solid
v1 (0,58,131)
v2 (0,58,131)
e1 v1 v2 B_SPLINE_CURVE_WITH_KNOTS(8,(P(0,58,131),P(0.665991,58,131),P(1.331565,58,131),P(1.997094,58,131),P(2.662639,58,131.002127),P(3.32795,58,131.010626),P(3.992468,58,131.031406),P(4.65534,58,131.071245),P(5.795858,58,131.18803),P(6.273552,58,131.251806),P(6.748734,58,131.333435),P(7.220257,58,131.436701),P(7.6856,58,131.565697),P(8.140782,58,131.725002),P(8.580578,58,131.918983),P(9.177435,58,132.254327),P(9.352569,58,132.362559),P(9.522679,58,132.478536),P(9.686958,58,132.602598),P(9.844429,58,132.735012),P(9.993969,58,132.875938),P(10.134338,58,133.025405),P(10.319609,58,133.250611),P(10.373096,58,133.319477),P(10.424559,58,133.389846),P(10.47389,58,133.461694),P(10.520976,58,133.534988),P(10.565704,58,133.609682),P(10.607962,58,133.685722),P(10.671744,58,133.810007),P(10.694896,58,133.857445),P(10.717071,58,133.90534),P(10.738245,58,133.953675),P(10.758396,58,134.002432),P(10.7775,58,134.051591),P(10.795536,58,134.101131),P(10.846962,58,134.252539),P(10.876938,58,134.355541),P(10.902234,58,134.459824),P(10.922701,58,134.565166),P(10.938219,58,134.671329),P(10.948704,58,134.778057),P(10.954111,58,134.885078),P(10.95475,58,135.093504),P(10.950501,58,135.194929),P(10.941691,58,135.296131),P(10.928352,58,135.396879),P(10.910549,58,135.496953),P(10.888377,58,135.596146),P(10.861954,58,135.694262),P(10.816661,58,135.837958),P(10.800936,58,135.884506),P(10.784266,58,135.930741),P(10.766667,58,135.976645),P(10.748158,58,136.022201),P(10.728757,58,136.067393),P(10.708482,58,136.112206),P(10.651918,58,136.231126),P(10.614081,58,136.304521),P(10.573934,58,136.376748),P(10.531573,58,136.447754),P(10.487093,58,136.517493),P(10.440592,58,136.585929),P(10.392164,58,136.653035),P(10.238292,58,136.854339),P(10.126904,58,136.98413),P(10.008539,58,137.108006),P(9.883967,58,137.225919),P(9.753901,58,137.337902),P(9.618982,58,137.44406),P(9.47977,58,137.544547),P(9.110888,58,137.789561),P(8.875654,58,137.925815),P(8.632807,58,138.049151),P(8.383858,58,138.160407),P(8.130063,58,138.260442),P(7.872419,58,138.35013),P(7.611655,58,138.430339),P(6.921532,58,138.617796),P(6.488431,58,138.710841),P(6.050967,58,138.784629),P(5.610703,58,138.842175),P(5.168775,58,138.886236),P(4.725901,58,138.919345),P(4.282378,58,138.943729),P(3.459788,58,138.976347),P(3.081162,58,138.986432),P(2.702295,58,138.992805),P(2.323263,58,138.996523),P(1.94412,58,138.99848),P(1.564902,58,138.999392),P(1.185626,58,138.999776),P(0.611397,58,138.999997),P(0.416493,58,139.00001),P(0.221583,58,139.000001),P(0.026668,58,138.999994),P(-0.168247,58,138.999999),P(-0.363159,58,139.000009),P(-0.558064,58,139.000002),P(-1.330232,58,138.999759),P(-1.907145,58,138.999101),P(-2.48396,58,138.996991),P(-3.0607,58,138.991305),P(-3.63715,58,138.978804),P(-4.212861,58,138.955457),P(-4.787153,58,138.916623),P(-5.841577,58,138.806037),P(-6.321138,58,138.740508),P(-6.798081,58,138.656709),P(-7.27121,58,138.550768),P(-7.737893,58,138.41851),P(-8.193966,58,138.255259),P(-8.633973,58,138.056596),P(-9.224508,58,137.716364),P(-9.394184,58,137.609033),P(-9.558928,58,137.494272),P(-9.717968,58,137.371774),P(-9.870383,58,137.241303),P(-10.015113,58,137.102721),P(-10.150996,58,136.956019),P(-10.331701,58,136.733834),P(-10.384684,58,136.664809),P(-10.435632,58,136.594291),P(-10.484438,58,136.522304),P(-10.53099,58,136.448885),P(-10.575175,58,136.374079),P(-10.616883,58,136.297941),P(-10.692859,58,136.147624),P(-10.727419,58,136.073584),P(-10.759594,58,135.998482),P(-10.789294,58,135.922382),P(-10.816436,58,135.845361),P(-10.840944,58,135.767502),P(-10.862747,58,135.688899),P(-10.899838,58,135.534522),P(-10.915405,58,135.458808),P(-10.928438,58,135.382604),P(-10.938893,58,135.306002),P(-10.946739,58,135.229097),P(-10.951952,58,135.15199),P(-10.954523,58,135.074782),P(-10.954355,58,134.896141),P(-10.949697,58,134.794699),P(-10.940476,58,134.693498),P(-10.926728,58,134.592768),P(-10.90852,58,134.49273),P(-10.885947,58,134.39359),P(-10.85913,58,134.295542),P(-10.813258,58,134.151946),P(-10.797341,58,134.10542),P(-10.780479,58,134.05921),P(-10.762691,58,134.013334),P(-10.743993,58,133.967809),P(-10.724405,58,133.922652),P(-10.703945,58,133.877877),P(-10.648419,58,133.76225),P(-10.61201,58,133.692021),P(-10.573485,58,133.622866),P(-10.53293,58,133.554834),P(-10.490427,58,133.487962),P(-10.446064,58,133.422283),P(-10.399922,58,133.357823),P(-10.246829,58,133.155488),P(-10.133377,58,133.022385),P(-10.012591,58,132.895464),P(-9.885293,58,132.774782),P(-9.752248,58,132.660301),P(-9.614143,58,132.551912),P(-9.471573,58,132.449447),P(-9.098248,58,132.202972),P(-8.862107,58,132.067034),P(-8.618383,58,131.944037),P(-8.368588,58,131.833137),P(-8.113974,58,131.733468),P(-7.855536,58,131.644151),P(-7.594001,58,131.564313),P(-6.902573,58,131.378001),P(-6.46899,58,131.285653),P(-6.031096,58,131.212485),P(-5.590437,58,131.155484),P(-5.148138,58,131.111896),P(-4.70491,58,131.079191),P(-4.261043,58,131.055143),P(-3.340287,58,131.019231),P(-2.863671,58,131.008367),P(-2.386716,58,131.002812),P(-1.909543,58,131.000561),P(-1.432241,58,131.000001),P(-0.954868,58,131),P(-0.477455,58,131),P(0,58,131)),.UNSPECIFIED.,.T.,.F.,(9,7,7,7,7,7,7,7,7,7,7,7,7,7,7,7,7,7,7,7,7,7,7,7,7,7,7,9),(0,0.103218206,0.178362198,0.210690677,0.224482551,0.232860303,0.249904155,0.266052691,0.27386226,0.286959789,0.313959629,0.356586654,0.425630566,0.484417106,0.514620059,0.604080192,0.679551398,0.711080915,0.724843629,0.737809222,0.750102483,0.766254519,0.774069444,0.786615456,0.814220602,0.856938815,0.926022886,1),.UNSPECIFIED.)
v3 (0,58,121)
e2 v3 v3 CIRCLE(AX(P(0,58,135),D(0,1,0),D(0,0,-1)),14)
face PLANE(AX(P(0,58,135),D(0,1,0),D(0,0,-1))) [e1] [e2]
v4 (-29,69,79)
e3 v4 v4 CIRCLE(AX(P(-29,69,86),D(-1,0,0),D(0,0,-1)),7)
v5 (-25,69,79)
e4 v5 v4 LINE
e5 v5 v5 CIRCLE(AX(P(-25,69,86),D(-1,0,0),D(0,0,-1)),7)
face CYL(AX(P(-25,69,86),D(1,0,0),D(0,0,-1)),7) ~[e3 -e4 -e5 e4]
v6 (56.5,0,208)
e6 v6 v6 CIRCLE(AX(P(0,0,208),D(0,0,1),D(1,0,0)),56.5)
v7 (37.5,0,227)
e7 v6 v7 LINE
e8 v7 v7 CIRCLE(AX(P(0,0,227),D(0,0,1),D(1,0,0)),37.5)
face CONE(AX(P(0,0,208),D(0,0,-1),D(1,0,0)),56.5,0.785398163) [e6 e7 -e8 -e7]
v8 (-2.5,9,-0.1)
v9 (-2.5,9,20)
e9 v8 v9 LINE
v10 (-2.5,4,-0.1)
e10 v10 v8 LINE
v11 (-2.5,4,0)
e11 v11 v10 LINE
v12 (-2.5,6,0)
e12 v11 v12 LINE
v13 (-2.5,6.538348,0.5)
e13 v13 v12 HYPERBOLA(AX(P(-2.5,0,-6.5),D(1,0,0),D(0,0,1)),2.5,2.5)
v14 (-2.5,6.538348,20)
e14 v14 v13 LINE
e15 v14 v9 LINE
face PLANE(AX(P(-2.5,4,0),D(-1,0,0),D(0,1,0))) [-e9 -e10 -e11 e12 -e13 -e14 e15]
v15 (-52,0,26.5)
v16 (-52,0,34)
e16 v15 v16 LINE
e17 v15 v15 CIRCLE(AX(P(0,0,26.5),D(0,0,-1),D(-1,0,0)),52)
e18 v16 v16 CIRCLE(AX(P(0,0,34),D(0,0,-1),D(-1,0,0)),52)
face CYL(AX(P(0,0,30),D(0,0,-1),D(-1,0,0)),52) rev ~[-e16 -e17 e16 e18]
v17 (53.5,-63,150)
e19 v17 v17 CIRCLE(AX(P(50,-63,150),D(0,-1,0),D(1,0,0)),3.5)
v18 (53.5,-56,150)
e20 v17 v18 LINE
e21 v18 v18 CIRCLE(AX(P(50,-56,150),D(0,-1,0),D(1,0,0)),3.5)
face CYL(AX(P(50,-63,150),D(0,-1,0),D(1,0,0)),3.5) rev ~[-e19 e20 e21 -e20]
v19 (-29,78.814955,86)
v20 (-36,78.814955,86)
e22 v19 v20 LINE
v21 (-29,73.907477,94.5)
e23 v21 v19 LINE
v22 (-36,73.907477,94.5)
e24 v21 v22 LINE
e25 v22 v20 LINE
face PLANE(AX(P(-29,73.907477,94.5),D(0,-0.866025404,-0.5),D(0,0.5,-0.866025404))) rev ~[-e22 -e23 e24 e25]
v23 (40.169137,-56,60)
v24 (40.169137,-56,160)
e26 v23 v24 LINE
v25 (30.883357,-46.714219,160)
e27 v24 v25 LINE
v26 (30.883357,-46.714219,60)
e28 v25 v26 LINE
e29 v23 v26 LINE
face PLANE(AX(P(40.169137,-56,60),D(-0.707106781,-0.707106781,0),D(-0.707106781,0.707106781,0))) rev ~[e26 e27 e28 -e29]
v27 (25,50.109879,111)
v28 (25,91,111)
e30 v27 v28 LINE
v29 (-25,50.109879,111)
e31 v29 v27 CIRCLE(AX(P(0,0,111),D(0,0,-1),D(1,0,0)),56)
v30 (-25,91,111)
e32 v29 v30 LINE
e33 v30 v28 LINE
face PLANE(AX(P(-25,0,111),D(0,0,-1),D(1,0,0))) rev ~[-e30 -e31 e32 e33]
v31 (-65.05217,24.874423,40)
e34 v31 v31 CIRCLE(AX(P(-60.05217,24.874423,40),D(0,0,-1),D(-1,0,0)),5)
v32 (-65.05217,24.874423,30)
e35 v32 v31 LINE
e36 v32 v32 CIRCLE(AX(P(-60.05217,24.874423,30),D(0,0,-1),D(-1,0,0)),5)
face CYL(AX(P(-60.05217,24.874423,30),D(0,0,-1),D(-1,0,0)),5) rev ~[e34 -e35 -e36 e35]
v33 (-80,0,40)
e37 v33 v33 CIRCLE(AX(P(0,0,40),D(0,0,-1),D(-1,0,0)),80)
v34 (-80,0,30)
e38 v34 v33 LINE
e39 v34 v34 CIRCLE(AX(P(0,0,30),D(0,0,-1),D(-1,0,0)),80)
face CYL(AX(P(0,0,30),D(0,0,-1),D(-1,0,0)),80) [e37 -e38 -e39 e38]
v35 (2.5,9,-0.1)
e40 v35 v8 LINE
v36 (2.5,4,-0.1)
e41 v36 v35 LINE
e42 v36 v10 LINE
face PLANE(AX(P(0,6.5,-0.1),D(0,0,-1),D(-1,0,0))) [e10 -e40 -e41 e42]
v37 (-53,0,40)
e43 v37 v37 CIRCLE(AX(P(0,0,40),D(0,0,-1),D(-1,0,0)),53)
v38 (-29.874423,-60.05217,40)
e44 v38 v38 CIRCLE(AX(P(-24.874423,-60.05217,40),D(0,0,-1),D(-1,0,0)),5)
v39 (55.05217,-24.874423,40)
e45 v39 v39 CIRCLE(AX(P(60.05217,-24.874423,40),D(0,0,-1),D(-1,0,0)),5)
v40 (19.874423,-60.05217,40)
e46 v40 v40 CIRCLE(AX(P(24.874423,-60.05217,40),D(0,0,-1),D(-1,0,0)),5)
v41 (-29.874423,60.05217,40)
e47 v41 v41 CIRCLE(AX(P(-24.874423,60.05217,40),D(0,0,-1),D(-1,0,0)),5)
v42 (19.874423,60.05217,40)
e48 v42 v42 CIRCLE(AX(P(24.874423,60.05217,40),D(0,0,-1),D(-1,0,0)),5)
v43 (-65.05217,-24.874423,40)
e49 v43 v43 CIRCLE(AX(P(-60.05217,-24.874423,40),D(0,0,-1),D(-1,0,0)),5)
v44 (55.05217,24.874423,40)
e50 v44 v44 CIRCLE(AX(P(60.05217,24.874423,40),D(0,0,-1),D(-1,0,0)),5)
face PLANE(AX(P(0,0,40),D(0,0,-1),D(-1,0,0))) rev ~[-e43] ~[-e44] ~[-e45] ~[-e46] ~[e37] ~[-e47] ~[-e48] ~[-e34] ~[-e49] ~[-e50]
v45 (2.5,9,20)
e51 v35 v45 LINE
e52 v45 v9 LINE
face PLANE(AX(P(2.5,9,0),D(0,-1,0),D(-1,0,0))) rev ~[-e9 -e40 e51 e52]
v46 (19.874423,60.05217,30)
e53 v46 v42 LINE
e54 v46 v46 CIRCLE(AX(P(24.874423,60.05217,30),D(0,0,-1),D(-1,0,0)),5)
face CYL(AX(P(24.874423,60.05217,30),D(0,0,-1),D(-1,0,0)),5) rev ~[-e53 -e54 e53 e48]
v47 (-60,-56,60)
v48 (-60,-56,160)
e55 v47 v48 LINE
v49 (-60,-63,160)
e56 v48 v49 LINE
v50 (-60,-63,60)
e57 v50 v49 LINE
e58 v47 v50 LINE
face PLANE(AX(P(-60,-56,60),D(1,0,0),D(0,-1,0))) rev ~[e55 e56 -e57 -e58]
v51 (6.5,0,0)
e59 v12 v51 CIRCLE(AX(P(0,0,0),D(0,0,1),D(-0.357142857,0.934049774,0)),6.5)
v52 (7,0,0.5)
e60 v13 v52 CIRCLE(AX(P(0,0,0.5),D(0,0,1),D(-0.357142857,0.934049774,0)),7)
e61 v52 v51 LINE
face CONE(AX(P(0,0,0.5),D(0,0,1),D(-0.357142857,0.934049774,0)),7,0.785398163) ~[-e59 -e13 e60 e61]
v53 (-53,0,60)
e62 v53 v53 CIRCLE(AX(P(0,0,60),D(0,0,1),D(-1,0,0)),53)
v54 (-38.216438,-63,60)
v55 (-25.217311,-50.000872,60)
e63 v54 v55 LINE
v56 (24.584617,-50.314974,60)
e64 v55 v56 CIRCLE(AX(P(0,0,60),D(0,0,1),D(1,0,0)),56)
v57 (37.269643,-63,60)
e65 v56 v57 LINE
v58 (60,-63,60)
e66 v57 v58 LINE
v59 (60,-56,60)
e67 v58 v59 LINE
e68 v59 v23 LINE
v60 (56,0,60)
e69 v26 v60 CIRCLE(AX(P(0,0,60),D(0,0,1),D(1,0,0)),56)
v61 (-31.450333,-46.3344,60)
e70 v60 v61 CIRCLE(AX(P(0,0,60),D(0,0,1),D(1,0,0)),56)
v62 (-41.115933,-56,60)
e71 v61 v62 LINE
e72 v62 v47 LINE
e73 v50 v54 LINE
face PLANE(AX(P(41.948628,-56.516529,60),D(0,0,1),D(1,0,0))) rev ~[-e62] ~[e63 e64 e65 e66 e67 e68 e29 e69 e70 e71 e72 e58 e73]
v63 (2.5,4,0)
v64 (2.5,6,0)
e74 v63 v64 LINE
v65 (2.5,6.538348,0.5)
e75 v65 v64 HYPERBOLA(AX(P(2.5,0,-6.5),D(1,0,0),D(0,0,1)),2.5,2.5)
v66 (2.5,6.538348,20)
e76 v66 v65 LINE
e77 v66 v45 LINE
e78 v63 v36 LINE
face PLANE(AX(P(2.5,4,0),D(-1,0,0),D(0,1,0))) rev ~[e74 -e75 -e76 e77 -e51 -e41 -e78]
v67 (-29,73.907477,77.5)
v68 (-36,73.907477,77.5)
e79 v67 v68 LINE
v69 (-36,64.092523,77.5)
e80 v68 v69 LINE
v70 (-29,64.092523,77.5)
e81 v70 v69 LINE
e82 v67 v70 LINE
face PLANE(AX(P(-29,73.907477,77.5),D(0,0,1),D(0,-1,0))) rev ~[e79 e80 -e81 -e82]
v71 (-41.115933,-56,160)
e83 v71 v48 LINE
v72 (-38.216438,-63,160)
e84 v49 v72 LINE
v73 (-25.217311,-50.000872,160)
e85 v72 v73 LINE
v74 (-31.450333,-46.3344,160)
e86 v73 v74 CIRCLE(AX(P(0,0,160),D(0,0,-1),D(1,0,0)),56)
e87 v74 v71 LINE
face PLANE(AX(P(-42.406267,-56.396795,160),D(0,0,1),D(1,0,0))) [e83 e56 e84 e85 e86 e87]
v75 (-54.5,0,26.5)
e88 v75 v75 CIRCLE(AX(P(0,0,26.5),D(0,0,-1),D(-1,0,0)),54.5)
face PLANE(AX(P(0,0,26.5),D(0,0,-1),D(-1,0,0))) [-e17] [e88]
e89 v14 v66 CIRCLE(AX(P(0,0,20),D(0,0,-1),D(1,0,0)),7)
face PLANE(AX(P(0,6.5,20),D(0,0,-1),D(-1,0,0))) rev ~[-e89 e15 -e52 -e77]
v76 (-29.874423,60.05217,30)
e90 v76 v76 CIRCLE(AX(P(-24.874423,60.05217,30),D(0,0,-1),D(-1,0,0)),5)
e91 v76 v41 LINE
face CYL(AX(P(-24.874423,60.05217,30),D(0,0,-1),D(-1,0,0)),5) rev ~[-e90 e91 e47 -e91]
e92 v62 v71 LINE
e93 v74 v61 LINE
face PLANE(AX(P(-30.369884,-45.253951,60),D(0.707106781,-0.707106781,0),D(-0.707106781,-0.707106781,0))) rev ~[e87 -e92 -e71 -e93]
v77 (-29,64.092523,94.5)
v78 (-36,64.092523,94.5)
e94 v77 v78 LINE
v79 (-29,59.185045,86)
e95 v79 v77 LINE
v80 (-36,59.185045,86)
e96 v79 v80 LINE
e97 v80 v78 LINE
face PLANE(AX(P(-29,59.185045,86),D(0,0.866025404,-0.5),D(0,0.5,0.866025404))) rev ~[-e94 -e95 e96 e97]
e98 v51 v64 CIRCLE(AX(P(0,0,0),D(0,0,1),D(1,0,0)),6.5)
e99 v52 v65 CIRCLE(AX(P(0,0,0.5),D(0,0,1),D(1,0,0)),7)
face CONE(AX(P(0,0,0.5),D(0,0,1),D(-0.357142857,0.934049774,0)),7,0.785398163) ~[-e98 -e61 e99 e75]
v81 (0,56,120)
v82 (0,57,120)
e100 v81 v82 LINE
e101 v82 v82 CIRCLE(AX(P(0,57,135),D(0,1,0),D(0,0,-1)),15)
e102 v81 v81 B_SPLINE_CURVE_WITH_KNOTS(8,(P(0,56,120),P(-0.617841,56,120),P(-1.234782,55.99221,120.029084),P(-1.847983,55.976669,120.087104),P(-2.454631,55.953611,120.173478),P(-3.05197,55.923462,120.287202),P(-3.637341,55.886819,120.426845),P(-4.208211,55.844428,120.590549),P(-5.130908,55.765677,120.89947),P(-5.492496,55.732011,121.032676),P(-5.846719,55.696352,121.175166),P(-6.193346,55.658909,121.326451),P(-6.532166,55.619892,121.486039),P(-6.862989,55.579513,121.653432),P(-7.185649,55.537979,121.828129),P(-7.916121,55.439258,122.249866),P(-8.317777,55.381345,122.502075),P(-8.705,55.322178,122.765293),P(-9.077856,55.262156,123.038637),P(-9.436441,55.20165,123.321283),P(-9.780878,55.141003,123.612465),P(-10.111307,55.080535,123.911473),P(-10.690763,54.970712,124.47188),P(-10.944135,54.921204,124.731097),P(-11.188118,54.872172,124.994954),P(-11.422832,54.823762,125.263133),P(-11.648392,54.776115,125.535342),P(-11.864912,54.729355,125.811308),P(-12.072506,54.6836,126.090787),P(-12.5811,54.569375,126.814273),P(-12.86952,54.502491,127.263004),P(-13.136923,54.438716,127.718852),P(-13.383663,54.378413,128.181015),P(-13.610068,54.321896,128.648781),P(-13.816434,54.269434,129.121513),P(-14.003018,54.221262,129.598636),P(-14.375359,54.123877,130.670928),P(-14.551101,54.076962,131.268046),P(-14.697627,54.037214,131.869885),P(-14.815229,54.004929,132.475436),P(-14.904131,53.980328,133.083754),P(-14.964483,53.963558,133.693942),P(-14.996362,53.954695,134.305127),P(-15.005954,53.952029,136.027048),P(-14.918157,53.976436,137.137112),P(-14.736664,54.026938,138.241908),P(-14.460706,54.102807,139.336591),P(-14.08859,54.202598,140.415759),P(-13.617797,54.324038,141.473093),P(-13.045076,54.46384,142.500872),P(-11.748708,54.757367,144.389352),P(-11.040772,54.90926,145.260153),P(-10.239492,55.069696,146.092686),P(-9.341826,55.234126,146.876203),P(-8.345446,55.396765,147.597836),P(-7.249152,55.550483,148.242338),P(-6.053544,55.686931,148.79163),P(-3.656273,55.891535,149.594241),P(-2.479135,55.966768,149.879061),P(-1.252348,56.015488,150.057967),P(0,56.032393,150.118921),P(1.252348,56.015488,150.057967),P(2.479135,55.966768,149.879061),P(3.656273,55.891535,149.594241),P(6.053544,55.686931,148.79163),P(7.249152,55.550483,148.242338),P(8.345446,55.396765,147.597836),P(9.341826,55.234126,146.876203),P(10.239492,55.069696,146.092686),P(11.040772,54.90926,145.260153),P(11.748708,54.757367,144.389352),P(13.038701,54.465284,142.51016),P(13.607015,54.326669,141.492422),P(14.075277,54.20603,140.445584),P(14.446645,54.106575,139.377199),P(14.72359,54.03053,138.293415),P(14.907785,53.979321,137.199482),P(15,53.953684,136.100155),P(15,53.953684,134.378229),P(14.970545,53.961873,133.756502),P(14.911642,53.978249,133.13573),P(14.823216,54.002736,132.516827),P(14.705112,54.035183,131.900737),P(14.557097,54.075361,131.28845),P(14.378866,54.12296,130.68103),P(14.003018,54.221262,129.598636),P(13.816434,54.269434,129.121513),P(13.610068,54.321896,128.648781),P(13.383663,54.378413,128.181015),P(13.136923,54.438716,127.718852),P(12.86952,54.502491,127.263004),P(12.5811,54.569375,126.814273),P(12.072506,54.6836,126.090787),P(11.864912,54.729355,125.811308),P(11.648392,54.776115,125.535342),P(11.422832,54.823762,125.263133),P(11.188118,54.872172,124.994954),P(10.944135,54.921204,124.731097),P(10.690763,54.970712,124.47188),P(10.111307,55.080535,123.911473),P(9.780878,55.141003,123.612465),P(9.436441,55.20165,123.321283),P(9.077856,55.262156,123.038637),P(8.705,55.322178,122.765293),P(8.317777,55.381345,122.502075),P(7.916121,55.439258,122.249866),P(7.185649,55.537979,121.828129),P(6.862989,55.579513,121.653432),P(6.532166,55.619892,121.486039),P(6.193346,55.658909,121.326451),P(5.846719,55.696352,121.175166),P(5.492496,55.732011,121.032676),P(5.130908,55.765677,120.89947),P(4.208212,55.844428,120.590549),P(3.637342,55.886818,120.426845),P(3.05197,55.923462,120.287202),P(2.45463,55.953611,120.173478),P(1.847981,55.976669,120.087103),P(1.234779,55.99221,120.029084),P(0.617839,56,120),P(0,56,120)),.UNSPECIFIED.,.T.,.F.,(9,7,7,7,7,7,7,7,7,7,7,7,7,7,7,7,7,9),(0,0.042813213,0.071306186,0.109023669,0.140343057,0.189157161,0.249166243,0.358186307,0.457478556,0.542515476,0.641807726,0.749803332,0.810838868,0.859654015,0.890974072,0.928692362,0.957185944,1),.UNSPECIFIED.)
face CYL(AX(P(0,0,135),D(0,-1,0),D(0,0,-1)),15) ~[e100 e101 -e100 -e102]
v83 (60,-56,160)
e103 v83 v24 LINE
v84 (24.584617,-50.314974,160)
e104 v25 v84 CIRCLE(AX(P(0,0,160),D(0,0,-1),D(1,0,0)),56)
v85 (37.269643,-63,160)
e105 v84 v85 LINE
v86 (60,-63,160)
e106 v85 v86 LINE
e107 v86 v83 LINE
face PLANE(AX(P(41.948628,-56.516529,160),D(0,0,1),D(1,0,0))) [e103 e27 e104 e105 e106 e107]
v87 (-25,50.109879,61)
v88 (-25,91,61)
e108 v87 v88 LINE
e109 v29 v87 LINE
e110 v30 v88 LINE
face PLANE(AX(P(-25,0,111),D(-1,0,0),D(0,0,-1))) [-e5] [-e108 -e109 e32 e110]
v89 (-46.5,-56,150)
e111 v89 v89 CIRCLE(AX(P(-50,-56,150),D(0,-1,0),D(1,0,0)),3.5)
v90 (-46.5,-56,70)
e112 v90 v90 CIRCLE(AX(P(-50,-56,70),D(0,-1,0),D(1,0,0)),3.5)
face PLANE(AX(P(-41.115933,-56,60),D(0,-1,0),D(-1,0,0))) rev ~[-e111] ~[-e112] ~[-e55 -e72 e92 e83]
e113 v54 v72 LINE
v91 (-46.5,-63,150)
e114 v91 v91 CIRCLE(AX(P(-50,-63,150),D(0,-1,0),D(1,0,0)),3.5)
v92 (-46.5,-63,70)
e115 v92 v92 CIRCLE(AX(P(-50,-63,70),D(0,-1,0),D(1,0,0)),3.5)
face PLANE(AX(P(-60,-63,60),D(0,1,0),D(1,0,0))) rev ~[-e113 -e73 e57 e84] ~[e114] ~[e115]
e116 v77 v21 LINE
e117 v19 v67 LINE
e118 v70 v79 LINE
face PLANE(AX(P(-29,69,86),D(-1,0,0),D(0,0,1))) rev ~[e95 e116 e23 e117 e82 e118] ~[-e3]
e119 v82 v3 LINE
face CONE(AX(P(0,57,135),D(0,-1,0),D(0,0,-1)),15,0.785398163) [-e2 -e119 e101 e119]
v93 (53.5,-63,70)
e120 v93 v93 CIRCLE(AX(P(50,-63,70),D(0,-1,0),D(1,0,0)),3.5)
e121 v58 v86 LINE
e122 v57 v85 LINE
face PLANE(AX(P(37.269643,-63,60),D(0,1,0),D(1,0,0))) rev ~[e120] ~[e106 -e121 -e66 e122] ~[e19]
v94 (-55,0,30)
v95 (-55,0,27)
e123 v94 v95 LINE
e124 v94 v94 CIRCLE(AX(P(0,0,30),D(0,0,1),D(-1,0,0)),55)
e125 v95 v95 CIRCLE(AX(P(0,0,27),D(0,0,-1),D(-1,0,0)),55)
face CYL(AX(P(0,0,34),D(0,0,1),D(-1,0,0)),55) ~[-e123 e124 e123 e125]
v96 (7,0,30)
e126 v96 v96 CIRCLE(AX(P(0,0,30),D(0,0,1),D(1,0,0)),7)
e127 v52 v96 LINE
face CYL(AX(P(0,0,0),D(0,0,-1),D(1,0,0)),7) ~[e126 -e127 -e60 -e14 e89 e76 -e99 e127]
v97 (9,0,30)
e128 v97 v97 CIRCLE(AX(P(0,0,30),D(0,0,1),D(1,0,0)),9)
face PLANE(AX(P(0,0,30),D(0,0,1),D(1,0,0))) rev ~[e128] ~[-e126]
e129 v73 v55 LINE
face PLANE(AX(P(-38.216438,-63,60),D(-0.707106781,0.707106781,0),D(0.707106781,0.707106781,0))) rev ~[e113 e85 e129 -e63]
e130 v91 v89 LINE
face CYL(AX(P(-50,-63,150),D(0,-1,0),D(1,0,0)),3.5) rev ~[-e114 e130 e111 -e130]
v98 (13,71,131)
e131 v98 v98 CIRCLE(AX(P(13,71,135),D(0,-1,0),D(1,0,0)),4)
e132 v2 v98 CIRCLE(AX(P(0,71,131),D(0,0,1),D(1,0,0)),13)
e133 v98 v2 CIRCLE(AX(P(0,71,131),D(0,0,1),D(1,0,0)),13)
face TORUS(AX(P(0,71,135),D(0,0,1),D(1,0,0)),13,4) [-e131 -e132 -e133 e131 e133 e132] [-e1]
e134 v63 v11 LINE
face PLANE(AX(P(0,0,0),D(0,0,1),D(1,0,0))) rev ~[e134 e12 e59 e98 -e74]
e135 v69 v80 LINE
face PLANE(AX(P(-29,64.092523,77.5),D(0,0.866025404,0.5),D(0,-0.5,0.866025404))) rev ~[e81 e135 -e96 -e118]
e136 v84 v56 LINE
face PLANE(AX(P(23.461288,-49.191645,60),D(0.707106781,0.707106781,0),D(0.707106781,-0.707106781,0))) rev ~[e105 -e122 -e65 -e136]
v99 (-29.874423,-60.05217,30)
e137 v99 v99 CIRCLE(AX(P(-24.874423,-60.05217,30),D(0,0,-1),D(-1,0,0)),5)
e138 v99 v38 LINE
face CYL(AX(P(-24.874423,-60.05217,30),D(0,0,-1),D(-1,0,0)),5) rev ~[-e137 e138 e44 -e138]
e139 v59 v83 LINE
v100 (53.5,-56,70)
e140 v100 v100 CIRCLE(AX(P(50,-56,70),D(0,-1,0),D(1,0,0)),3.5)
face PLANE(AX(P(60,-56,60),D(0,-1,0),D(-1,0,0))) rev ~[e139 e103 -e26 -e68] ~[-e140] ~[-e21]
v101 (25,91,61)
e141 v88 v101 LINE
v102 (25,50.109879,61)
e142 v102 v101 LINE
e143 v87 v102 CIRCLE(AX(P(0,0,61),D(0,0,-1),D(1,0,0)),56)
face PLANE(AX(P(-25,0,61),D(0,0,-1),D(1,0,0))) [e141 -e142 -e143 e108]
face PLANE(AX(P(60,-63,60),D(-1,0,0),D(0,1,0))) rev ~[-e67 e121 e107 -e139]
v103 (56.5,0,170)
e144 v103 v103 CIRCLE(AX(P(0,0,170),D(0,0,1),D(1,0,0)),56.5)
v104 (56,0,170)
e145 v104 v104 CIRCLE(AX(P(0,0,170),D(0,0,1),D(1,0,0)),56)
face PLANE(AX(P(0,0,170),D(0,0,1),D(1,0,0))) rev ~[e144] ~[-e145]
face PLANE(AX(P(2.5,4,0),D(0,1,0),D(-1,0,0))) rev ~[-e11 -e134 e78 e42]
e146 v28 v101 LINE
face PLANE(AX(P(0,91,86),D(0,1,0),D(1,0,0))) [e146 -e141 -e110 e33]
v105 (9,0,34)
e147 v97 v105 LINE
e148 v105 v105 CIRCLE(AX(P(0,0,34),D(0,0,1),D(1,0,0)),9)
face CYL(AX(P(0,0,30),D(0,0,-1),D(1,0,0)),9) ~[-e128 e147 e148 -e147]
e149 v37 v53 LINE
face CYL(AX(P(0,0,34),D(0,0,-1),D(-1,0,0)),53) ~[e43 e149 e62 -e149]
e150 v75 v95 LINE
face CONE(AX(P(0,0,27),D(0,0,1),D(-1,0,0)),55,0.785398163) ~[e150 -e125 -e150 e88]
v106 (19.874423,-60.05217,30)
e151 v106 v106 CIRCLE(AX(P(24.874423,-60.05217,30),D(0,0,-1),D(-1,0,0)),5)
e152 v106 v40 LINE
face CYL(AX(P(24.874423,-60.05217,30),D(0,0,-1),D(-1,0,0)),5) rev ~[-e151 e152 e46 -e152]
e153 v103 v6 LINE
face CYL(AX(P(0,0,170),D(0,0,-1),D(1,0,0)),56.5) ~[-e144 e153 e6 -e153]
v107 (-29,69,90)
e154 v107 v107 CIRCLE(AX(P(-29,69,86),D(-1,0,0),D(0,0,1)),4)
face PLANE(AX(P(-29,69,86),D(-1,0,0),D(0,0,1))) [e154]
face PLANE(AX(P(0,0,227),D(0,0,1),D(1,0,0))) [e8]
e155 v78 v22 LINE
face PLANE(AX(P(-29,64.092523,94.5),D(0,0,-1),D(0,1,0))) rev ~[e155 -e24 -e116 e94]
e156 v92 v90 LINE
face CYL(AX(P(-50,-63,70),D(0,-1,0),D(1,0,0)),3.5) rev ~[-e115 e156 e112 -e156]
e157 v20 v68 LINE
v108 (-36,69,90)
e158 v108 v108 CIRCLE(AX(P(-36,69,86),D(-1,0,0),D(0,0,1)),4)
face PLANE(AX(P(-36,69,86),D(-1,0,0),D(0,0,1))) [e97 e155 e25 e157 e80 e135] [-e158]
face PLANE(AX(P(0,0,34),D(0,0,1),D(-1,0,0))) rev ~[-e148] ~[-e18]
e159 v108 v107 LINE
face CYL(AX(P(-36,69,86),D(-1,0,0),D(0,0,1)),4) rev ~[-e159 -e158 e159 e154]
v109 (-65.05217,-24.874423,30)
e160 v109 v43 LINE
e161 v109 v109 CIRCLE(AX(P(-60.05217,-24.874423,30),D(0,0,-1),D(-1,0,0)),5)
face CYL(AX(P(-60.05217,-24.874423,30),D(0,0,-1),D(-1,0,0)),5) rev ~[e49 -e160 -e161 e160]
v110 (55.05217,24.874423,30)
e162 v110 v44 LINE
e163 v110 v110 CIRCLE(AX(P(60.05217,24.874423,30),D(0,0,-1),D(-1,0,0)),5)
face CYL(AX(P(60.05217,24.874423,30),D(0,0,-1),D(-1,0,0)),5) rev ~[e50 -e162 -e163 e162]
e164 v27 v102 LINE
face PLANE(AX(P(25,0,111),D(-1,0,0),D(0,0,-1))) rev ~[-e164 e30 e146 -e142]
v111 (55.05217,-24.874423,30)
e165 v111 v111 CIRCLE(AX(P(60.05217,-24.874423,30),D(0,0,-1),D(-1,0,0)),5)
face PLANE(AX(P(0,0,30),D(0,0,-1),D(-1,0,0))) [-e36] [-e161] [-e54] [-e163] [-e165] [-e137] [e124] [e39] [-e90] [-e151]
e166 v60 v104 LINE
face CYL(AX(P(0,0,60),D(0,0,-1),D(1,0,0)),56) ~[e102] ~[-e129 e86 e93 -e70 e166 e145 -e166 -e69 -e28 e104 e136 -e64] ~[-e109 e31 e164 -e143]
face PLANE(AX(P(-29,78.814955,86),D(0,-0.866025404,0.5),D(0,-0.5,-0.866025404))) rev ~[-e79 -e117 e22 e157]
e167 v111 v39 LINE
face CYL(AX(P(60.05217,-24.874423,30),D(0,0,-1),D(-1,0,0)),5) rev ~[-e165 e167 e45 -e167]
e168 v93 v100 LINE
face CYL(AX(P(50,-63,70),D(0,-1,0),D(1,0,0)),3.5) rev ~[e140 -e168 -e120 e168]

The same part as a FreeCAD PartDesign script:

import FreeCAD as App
import Part
import Sketcher

V = App.Vector
Q = App.Units.Quantity


def edges_at(feature, points):
    """Names of the edges that pass closest to the given points."""
    edges = feature.Shape.Edges
    near = lambda p: min(range(len(edges)), key=lambda i: edges[i].distToShape(Part.Vertex(*p))[0])
    return sorted({f"Edge{near(p) + 1}" for p in points})

doc = App.newDocument("Part")
body = doc.addObject("PartDesign::Body", "Body")

# Sketch on XY plane
sketch1 = body.newObject("Sketcher::SketchObject", "Sketch")
sketch1.AttachmentSupport = (doc.getObject("XY_Plane"), [""])
sketch1.MapMode = "FlatFace"
sketch1.addGeometry(Part.Circle(V(0, 0, 0), V(0, 0, 1), 7), False)
sketch1.addConstraint(Sketcher.Constraint("Coincident", 0, 3, -1, 1))
sketch1.addConstraint(Sketcher.Constraint("Diameter", 0, 14.0))
pad1 = body.newObject("PartDesign::Pad", "Pad")
pad1.Profile = sketch1
pad1.Length = 30

# Sketch on XY plane
sketch2 = body.newObject("Sketcher::SketchObject", "Sketch001")
sketch2.AttachmentSupport = (doc.getObject("XY_Plane"), [""])
sketch2.MapMode = "FlatFace"
sketch2.addGeometry(Part.LineSegment(V(2, 9, 0), V(2, 4, 0)), False)
sketch2.addGeometry(Part.LineSegment(V(2, 4, 0), V(-2, 4, 0)), False)
sketch2.addGeometry(Part.LineSegment(V(-2, 4, 0), V(-2, 9, 0)), False)
sketch2.addGeometry(Part.LineSegment(V(-2, 9, 0), V(2, 9, 0)), False)
sketch2.addConstraint(Sketcher.Constraint("Coincident", 0, 2, 1, 1))
sketch2.addConstraint(Sketcher.Constraint("Coincident", 1, 2, 2, 1))
sketch2.addConstraint(Sketcher.Constraint("Coincident", 2, 2, 3, 1))
sketch2.addConstraint(Sketcher.Constraint("Coincident", 3, 2, 0, 1))
sketch2.addConstraint(Sketcher.Constraint("Vertical", 0))
sketch2.addConstraint(Sketcher.Constraint("Horizontal", 1))
sketch2.addConstraint(Sketcher.Constraint("Vertical", 2))
sketch2.addConstraint(Sketcher.Constraint("Horizontal", 3))
sketch2.addConstraint(Sketcher.Constraint("Equal", 3, 0))
sketch2.addConstraint(Sketcher.Constraint("DistanceX", 1, 2, 1, 1, 5.0))
sketch2.addConstraint(Sketcher.Constraint("DistanceY", -1, 1, 0, 2, 4.0))
sketch2.addConstraint(Sketcher.Constraint("DistanceX", -1, 1, 0, 2, 2.5))
pad2 = body.newObject("PartDesign::Pad", "Pad001")
pad2.Profile = sketch2
pad2.Type = "TwoLengths"
pad2.Length = 0.1
pad2.Length2 = 20
pad2.Reversed = True

# Sketch on XY plane
sketch3 = body.newObject("Sketcher::SketchObject", "Sketch002")
sketch3.AttachmentSupport = (doc.getObject("XY_Plane"), [""])
sketch3.MapMode = "FlatFace"
sketch3.AttachmentOffset = App.Placement(V(0, 0, 30), App.Rotation())
sketch3.addGeometry(Part.Circle(V(0, 0, 0), V(0, 0, 1), 9), False)
sketch3.addConstraint(Sketcher.Constraint("Coincident", 0, 3, -1, 1))
sketch3.addConstraint(Sketcher.Constraint("Diameter", 0, 18.0))
pad3 = body.newObject("PartDesign::Pad", "Pad002")
pad3.Profile = sketch3
pad3.Length = 4
body2 = doc.addObject("PartDesign::Body", "Body001")

# Sketch on XY plane
sketch4 = body2.newObject("Sketcher::SketchObject", "Sketch003")
sketch4.AttachmentSupport = (doc.getObject("XY_Plane001"), [""])
sketch4.MapMode = "FlatFace"
sketch4.AttachmentOffset = App.Placement(V(0, 0, 30), App.Rotation())
sketch4.addGeometry(Part.Circle(V(0, 0, 0), V(0, 0, 1), 80), False)
sketch4.addGeometry(Part.Circle(V(0, 0, 0), V(0, 0, 1), 52), False)
sketch4.addConstraint(Sketcher.Constraint("Coincident", 0, 3, -1, 1))
sketch4.addConstraint(Sketcher.Constraint("Coincident", 1, 3, -1, 1))
sketch4.addConstraint(Sketcher.Constraint("Diameter", 0, 160.0))
sketch4.addConstraint(Sketcher.Constraint("Diameter", 1, 104.0))
pad4 = body2.newObject("PartDesign::Pad", "Pad003")
pad4.Profile = sketch4
pad4.Length = 10
body.AllowCompound = True
doc.recompute()

boolean = body.newObject("PartDesign::Boolean", "Boolean")
boolean.Type = "Fuse"
boolean.addObjects([body2])

# Sketch on XY plane
sketch5 = body.newObject("Sketcher::SketchObject", "Sketch004")
sketch5.AttachmentSupport = (doc.getObject("XY_Plane"), [""])
sketch5.MapMode = "FlatFace"
sketch5.AttachmentOffset = App.Placement(V(0, 0, 34), App.Rotation())
sketch5.addGeometry(Part.Circle(V(0, 0, 0), V(0, 0, 1), 53), False)
sketch5.addConstraint(Sketcher.Constraint("Coincident", 0, 3, -1, 1))
sketch5.addConstraint(Sketcher.Constraint("Diameter", 0, 106.0))
pad5 = body.newObject("PartDesign::Pad", "Pad004")
pad5.Profile = sketch5
pad5.Length = 26

# Sketch on XY plane
sketch6 = body.newObject("Sketcher::SketchObject", "Sketch005")
sketch6.AttachmentSupport = (doc.getObject("XY_Plane"), [""])
sketch6.MapMode = "FlatFace"
sketch6.AttachmentOffset = App.Placement(V(0, 0, 34), App.Rotation())
sketch6.addGeometry(Part.Circle(V(0, 0, 0), V(0, 0, 1), 55), False)
sketch6.addGeometry(Part.Circle(V(0, 0, 0), V(0, 0, 1), 52), False)
sketch6.addConstraint(Sketcher.Constraint("Coincident", 0, 3, -1, 1))
sketch6.addConstraint(Sketcher.Constraint("Coincident", 1, 3, -1, 1))
sketch6.addConstraint(Sketcher.Constraint("Diameter", 0, 110.0))
sketch6.addConstraint(Sketcher.Constraint("Diameter", 1, 104.0))
pad6 = body.newObject("PartDesign::Pad", "Pad005")
pad6.Profile = sketch6
pad6.Length = 7.5
pad6.Reversed = True
doc.recompute()

chamfer = body.newObject("PartDesign::Chamfer", "Chamfer")
chamfer.Base = (pad6, edges_at(pad6, [(55, 0, 26.5), (-3.969, -5.766, 0)]))
chamfer.Size = 0.5

# Sketch on XY plane
sketch7 = body.newObject("Sketcher::SketchObject", "Sketch006")
sketch7.AttachmentSupport = (doc.getObject("XY_Plane"), [""])
sketch7.MapMode = "FlatFace"
sketch7.AttachmentOffset = App.Placement(V(0, 0, 30), App.Rotation())
sketch7.addGeometry(Part.Circle(V(25, 60, 0), V(0, 0, 1), 5), False)
sketch7.addGeometry(Part.Circle(V(-25, 60, 0), V(0, 0, 1), 5), False)
sketch7.addGeometry(Part.Circle(V(-60, 25, 0), V(0, 0, 1), 5), False)
sketch7.addGeometry(Part.Circle(V(-60, -25, 0), V(0, 0, 1), 5), False)
sketch7.addGeometry(Part.Circle(V(-25, -60, 0), V(0, 0, 1), 5), False)
sketch7.addGeometry(Part.Circle(V(25, -60, 0), V(0, 0, 1), 5), False)
sketch7.addGeometry(Part.Circle(V(60, -25, 0), V(0, 0, 1), 5), False)
sketch7.addGeometry(Part.Circle(V(60, 25, 0), V(0, 0, 1), 5), False)
sketch7.addConstraint(Sketcher.Constraint("Equal", 0, 1))
sketch7.addConstraint(Sketcher.Constraint("Equal", 1, 2))
sketch7.addConstraint(Sketcher.Constraint("Equal", 2, 3))
sketch7.addConstraint(Sketcher.Constraint("Equal", 3, 4))
sketch7.addConstraint(Sketcher.Constraint("Equal", 4, 5))
sketch7.addConstraint(Sketcher.Constraint("Equal", 5, 6))
sketch7.addConstraint(Sketcher.Constraint("Equal", 6, 7))
sketch7.addConstraint(Sketcher.Constraint("Symmetric", 0, 3, 4, 3, -1, 1))
sketch7.addConstraint(Sketcher.Constraint("Symmetric", 1, 3, 5, 3, -1, 1))
sketch7.addConstraint(Sketcher.Constraint("Symmetric", 2, 3, 6, 3, -1, 1))
sketch7.addConstraint(Sketcher.Constraint("Symmetric", 3, 3, 7, 3, -1, 1))
sketch7.addConstraint(Sketcher.Constraint("Symmetric", 0, 3, 1, 3, -2))
sketch7.addConstraint(Sketcher.Constraint("Symmetric", 3, 3, 6, 3, -2))
sketch7.addConstraint(Sketcher.Constraint("Diameter", 0, 10.0))
sketch7.addConstraint(Sketcher.Constraint("DistanceY", -1, 1, 0, 3, 60.05217))
sketch7.addConstraint(Sketcher.Constraint("DistanceX", 2, 3, -1, 1, 60.05217))
sketch7.addConstraint(Sketcher.Constraint("DistanceX", -1, 1, 0, 3, 24.874423))
sketch7.addConstraint(Sketcher.Constraint("DistanceY", -1, 1, 2, 3, 24.874423))
pocket1 = body.newObject("PartDesign::Pocket", "Pocket")
pocket1.Profile = sketch7
pocket1.Type = "ThroughAll"
pocket1.Reversed = True

# Sketch on XY plane
sketch8 = body.newObject("Sketcher::SketchObject", "Sketch007")
sketch8.AttachmentSupport = (doc.getObject("XY_Plane"), [""])
sketch8.MapMode = "FlatFace"
sketch8.AttachmentOffset = App.Placement(V(0, 0, 60), App.Rotation())
sketch8.addGeometry(Part.Circle(V(0, 0, 0), V(0, 0, 1), 56), False)
sketch8.addConstraint(Sketcher.Constraint("Coincident", 0, 3, -1, 1))
sketch8.addConstraint(Sketcher.Constraint("Diameter", 0, 112.0))
pad7 = body.newObject("PartDesign::Pad", "Pad006")
pad7.Profile = sketch8
pad7.Length = 110

# Sketch on XY plane
sketch9 = body.newObject("Sketcher::SketchObject", "Sketch008")
sketch9.AttachmentSupport = (doc.getObject("XY_Plane"), [""])
sketch9.MapMode = "FlatFace"
sketch9.AttachmentOffset = App.Placement(V(0, 0, 170), App.Rotation())
sketch9.addGeometry(Part.Circle(V(0, 0, 0), V(0, 0, 1), 56), False)
sketch9.addConstraint(Sketcher.Constraint("Coincident", 0, 3, -1, 1))
sketch9.addConstraint(Sketcher.Constraint("Diameter", 0, 113.0))
pad8 = body.newObject("PartDesign::Pad", "Pad007")
pad8.Profile = sketch9
pad8.Length = 57
doc.recompute()

chamfer2 = body.newObject("PartDesign::Chamfer", "Chamfer001")
chamfer2.Base = (pad8, edges_at(pad8, [(-56.5, 0, 227)]))
chamfer2.Size = 19

# Sketch on XY plane
sketch10 = body.newObject("Sketcher::SketchObject", "Sketch009")
sketch10.AttachmentSupport = (doc.getObject("XY_Plane"), [""])
sketch10.MapMode = "FlatFace"
sketch10.AttachmentOffset = App.Placement(V(0, 0, 60), App.Rotation())
sketch10.addGeometry(Part.LineSegment(V(40, -56, 0), V(60, -56, 0)), False)
sketch10.addGeometry(Part.LineSegment(V(60, -56, 0), V(60, -63, 0)), False)
sketch10.addGeometry(Part.LineSegment(V(60, -63, 0), V(37, -63, 0)), False)
sketch10.addGeometry(Part.LineSegment(V(37, -63, 0), V(23, -49, 0)), False)
sketch10.addGeometry(Part.LineSegment(V(23, -49, 0), V(30, -46, 0)), False)
sketch10.addGeometry(Part.LineSegment(V(30, -46, 0), V(40, -56, 0)), False)
sketch10.addGeometry(Part.LineSegment(V(-60, -56, 0), V(-41, -56, 0)), False)
sketch10.addGeometry(Part.LineSegment(V(-41, -56, 0), V(-30, -45, 0)), False)
sketch10.addGeometry(Part.LineSegment(V(-30, -45, 0), V(-24, -49, 0)), False)
sketch10.addGeometry(Part.LineSegment(V(-24, -49, 0), V(-38, -63, 0)), False)
sketch10.addGeometry(Part.LineSegment(V(-38, -63, 0), V(-60, -63, 0)), False)
sketch10.addGeometry(Part.LineSegment(V(-60, -63, 0), V(-60, -56, 0)), False)
sketch10.addConstraint(Sketcher.Constraint("Coincident", 0, 2, 1, 1))
sketch10.addConstraint(Sketcher.Constraint("Coincident", 1, 2, 2, 1))
sketch10.addConstraint(Sketcher.Constraint("Coincident", 2, 2, 3, 1))
sketch10.addConstraint(Sketcher.Constraint("Coincident", 3, 2, 4, 1))
sketch10.addConstraint(Sketcher.Constraint("Coincident", 4, 2, 5, 1))
sketch10.addConstraint(Sketcher.Constraint("Coincident", 5, 2, 0, 1))
sketch10.addConstraint(Sketcher.Constraint("Coincident", 6, 2, 7, 1))
sketch10.addConstraint(Sketcher.Constraint("Coincident", 7, 2, 8, 1))
sketch10.addConstraint(Sketcher.Constraint("Coincident", 8, 2, 9, 1))
sketch10.addConstraint(Sketcher.Constraint("Coincident", 9, 2, 10, 1))
sketch10.addConstraint(Sketcher.Constraint("Coincident", 10, 2, 11, 1))
sketch10.addConstraint(Sketcher.Constraint("Coincident", 11, 2, 6, 1))
sketch10.addConstraint(Sketcher.Constraint("Horizontal", 0))
sketch10.addConstraint(Sketcher.Constraint("Vertical", 1))
sketch10.addConstraint(Sketcher.Constraint("Horizontal", 2))
sketch10.addConstraint(Sketcher.Constraint("Horizontal", 6))
sketch10.addConstraint(Sketcher.Constraint("Horizontal", 10))
sketch10.addConstraint(Sketcher.Constraint("Vertical", 11))
sketch10.addConstraint(Sketcher.Constraint("Symmetric", 1, 2, 10, 2, -2))
sketch10.addConstraint(Sketcher.Constraint("Parallel", 3, 5))
sketch10.addConstraint(Sketcher.Constraint("Perpendicular", 5, 7))
sketch10.addConstraint(Sketcher.Constraint("Parallel", 7, 9))
sketch10.addConstraint(Sketcher.Constraint("Horizontal", 5, 2, 6, 2))
sketch10.addConstraint(Sketcher.Constraint("DistanceY", 1, 2, 1, 1, 7.0))
sketch10.addConstraint(Sketcher.Constraint("Angle", 3, Q("135 deg")))
sketch10.addConstraint(Sketcher.Constraint("DistanceX", -1, 1, 0, 2, 60.0))
sketch10.addConstraint(Sketcher.Constraint("DistanceY", 0, 2, -1, 1, 56.0))
sketch10.addConstraint(Sketcher.Constraint("DistanceX", 10, 2, 10, 1, 21.783562))
sketch10.addConstraint(Sketcher.Constraint("DistanceX", 8, 2, 4, 2, 54.272301))
sketch10.addConstraint(Sketcher.Constraint("Distance", 4, 7.270468))
sketch10.addConstraint(Sketcher.Constraint("DistanceX", 0, 1, 0, 2, 19.830863))
sketch10.addConstraint(Sketcher.Constraint("DistanceX", 2, 2, 2, 1, 22.730357))
sketch10.addConstraint(Sketcher.Constraint("DistanceX", 6, 1, 6, 2, 18.884067))
sketch10.addConstraint(Sketcher.Constraint("DistanceY", 4, 2, -1, 1, 45.63109))
sketch10.addConstraint(Sketcher.Constraint("DistanceY", 7, 2, -1, 1, 45.253951))
pad9 = body.newObject("PartDesign::Pad", "Pad008")
pad9.Profile = sketch10
pad9.Length = 100

# Sketch on XZ plane
sketch11 = body.newObject("Sketcher::SketchObject", "Sketch010")
sketch11.AttachmentSupport = (doc.getObject("XZ_Plane"), [""])
sketch11.MapMode = "FlatFace"
sketch11.AttachmentOffset = App.Placement(V(0, 0, 63), App.Rotation())
sketch11.addGeometry(Part.Circle(V(-50, 70, 0), V(0, 0, 1), 3.5), False)
sketch11.addConstraint(Sketcher.Constraint("Diameter", 0, 7.0))
sketch11.addConstraint(Sketcher.Constraint("DistanceX", 0, 3, -1, 1, 50.0))
sketch11.addConstraint(Sketcher.Constraint("DistanceY", -1, 1, 0, 3, 70.0))
pocket2 = body.newObject("PartDesign::Pocket", "Pocket001")
pocket2.Profile = sketch11
pocket2.Type = "UpToFirst"

# Sketch on XZ plane
sketch12 = body.newObject("Sketcher::SketchObject", "Sketch011")
sketch12.AttachmentSupport = (doc.getObject("XZ_Plane"), [""])
sketch12.MapMode = "FlatFace"
sketch12.AttachmentOffset = App.Placement(V(0, 0, 63), App.Rotation())
sketch12.addGeometry(Part.Circle(V(50, 70, 0), V(0, 0, 1), 3.5), False)
sketch12.addConstraint(Sketcher.Constraint("Diameter", 0, 7.0))
sketch12.addConstraint(Sketcher.Constraint("DistanceX", -1, 1, 0, 3, 50.0))
sketch12.addConstraint(Sketcher.Constraint("DistanceY", -1, 1, 0, 3, 70.0))
pocket3 = body.newObject("PartDesign::Pocket", "Pocket002")
pocket3.Profile = sketch12
pocket3.Type = "UpToFirst"

# Sketch on XZ plane
sketch13 = body.newObject("Sketcher::SketchObject", "Sketch012")
sketch13.AttachmentSupport = (doc.getObject("XZ_Plane"), [""])
sketch13.MapMode = "FlatFace"
sketch13.AttachmentOffset = App.Placement(V(0, 0, 63), App.Rotation())
sketch13.addGeometry(Part.Circle(V(-50, 150, 0), V(0, 0, 1), 3.5), False)
sketch13.addConstraint(Sketcher.Constraint("Diameter", 0, 7.0))
sketch13.addConstraint(Sketcher.Constraint("DistanceX", 0, 3, -1, 1, 50.0))
sketch13.addConstraint(Sketcher.Constraint("DistanceY", -1, 1, 0, 3, 150.0))
pocket4 = body.newObject("PartDesign::Pocket", "Pocket003")
pocket4.Profile = sketch13
pocket4.Type = "UpToFirst"

# Sketch on XZ plane
sketch14 = body.newObject("Sketcher::SketchObject", "Sketch013")
sketch14.AttachmentSupport = (doc.getObject("XZ_Plane"), [""])
sketch14.MapMode = "FlatFace"
sketch14.AttachmentOffset = App.Placement(V(0, 0, 63), App.Rotation())
sketch14.addGeometry(Part.Circle(V(50, 150, 0), V(0, 0, 1), 3.5), False)
sketch14.addConstraint(Sketcher.Constraint("Diameter", 0, 7.0))
sketch14.addConstraint(Sketcher.Constraint("DistanceX", -1, 1, 0, 3, 50.0))
sketch14.addConstraint(Sketcher.Constraint("DistanceY", -1, 1, 0, 3, 150.0))
pocket5 = body.newObject("PartDesign::Pocket", "Pocket004")
pocket5.Profile = sketch14
pocket5.Type = "UpToFirst"

# Sketch on XZ plane
sketch15 = body.newObject("Sketcher::SketchObject", "Sketch014")
sketch15.AttachmentSupport = (doc.getObject("XZ_Plane"), [""])
sketch15.MapMode = "FlatFace"
sketch15.addGeometry(Part.LineSegment(V(-25, 61, 0), V(-25, 111, 0)), False)
sketch15.addGeometry(Part.LineSegment(V(-25, 111, 0), V(25, 111, 0)), False)
sketch15.addGeometry(Part.LineSegment(V(25, 111, 0), V(25, 61, 0)), False)
sketch15.addGeometry(Part.LineSegment(V(25, 61, 0), V(-25, 61, 0)), False)
sketch15.addConstraint(Sketcher.Constraint("Coincident", 0, 2, 1, 1))
sketch15.addConstraint(Sketcher.Constraint("Coincident", 1, 2, 2, 1))
sketch15.addConstraint(Sketcher.Constraint("Coincident", 2, 2, 3, 1))
sketch15.addConstraint(Sketcher.Constraint("Coincident", 3, 2, 0, 1))
sketch15.addConstraint(Sketcher.Constraint("Vertical", 0))
sketch15.addConstraint(Sketcher.Constraint("Horizontal", 1))
sketch15.addConstraint(Sketcher.Constraint("Vertical", 2))
sketch15.addConstraint(Sketcher.Constraint("Horizontal", 3))
sketch15.addConstraint(Sketcher.Constraint("Equal", 3, 0))
sketch15.addConstraint(Sketcher.Constraint("DistanceX", 1, 1, 1, 2, 50.0))
sketch15.addConstraint(Sketcher.Constraint("DistanceX", 0, 2, -1, 1, 25.0))
sketch15.addConstraint(Sketcher.Constraint("DistanceY", -1, 1, 0, 2, 111.0))
pad10 = body.newObject("PartDesign::Pad", "Pad009")
pad10.Profile = sketch15
pad10.Length = 91
pad10.Reversed = True

# Sketch on XZ plane
sketch16 = body.newObject("Sketcher::SketchObject", "Sketch015")
sketch16.AttachmentSupport = (doc.getObject("XZ_Plane"), [""])
sketch16.MapMode = "FlatFace"
sketch16.addGeometry(Part.Circle(V(0, 135, 0), V(0, 0, 1), 15), False)
sketch16.addConstraint(Sketcher.Constraint("PointOnObject", 0, 3, -2))
sketch16.addConstraint(Sketcher.Constraint("Diameter", 0, 30.0))
sketch16.addConstraint(Sketcher.Constraint("DistanceY", -1, 1, 0, 3, 135.0))
pad11 = body.newObject("PartDesign::Pad", "Pad010")
pad11.Profile = sketch16
pad11.Length = 58
pad11.Reversed = True
doc.recompute()

chamfer3 = body.newObject("PartDesign::Chamfer", "Chamfer002")
chamfer3.Base = (pad11, edges_at(pad11, [(0, 58, 150)]))
chamfer3.Size = 1

# Sketch on YZ plane
sketch17 = body.newObject("Sketcher::SketchObject", "Sketch016")
sketch17.AttachmentSupport = (doc.getObject("YZ_Plane"), [""])
sketch17.MapMode = "FlatFace"
sketch17.addGeometry(Part.Circle(V(84, 135, 0), V(0, 0, 1), 4), False)
sketch17.addConstraint(Sketcher.Constraint("Diameter", 0, 8.0))
sketch17.addConstraint(Sketcher.Constraint("DistanceX", -1, 1, 0, 3, 84.0))
sketch17.addConstraint(Sketcher.Constraint("DistanceY", -1, 1, 0, 3, 135.0))

# Sketch on XY plane
sketch18 = body.newObject("Sketcher::SketchObject", "Sketch017")
sketch18.AttachmentSupport = (doc.getObject("XY_Plane"), [""])
sketch18.MapMode = "FlatFace"
sketch18.AttachmentOffset = App.Placement(V(0, 0, 135), App.Rotation())
sketch18.addGeometry(Part.Circle(V(0, 71, 0), V(0, 0, 1), 13), False)
sketch18.addConstraint(Sketcher.Constraint("PointOnObject", 0, 3, -2))
sketch18.addConstraint(Sketcher.Constraint("Diameter", 0, 26.0))
sketch18.addConstraint(Sketcher.Constraint("DistanceY", -1, 1, 0, 3, 71.0))
doc.recompute()

additivepipe = body.newObject("PartDesign::AdditivePipe", "AdditivePipe")
additivepipe.Profile = sketch17
additivepipe.Spine = (sketch18, ["Edge1"])

# Sketch on YZ plane
sketch19 = body.newObject("Sketcher::SketchObject", "Sketch018")
sketch19.AttachmentSupport = (doc.getObject("YZ_Plane"), [""])
sketch19.MapMode = "FlatFace"
sketch19.AttachmentOffset = App.Placement(V(0, 0, -25), App.Rotation())
sketch19.addGeometry(Part.Circle(V(69, 86, 0), V(0, 0, 1), 7), False)
sketch19.addConstraint(Sketcher.Constraint("Diameter", 0, 14.0))
sketch19.addConstraint(Sketcher.Constraint("DistanceX", -1, 1, 0, 3, 69.0))
sketch19.addConstraint(Sketcher.Constraint("DistanceY", -1, 1, 0, 3, 86.0))
pad12 = body.newObject("PartDesign::Pad", "Pad011")
pad12.Profile = sketch19
pad12.Length = 4
pad12.Reversed = True

# Sketch on YZ plane
sketch20 = body.newObject("Sketcher::SketchObject", "Sketch019")
sketch20.AttachmentSupport = (doc.getObject("YZ_Plane"), [""])
sketch20.MapMode = "FlatFace"
sketch20.AttachmentOffset = App.Placement(V(0, 0, -29), App.Rotation())
sketch20.addGeometry(Part.LineSegment(V(79, 86, 0), V(74, 78, 0)), False)
sketch20.addGeometry(Part.LineSegment(V(74, 78, 0), V(64, 78, 0)), False)
sketch20.addGeometry(Part.LineSegment(V(64, 78, 0), V(59, 86, 0)), False)
sketch20.addGeometry(Part.LineSegment(V(59, 86, 0), V(64, 94, 0)), False)
sketch20.addGeometry(Part.LineSegment(V(64, 94, 0), V(74, 94, 0)), False)
sketch20.addGeometry(Part.LineSegment(V(74, 94, 0), V(79, 86, 0)), False)
sketch20.addConstraint(Sketcher.Constraint("Coincident", 0, 2, 1, 1))
sketch20.addConstraint(Sketcher.Constraint("Coincident", 1, 2, 2, 1))
sketch20.addConstraint(Sketcher.Constraint("Coincident", 2, 2, 3, 1))
sketch20.addConstraint(Sketcher.Constraint("Coincident", 3, 2, 4, 1))
sketch20.addConstraint(Sketcher.Constraint("Coincident", 4, 2, 5, 1))
sketch20.addConstraint(Sketcher.Constraint("Coincident", 5, 2, 0, 1))
sketch20.addConstraint(Sketcher.Constraint("Horizontal", 1))
sketch20.addConstraint(Sketcher.Constraint("Horizontal", 4))
sketch20.addConstraint(Sketcher.Constraint("Parallel", 0, 3))
sketch20.addConstraint(Sketcher.Constraint("Parallel", 2, 5))
sketch20.addConstraint(Sketcher.Constraint("Horizontal", 2, 2, 5, 2))
sketch20.addConstraint(Sketcher.Constraint("Vertical", 1, 2, 3, 2))
sketch20.addConstraint(Sketcher.Constraint("Vertical", 0, 2, 4, 2))
sketch20.addConstraint(Sketcher.Constraint("Angle", 0, Q("-120 deg")))
sketch20.addConstraint(Sketcher.Constraint("DistanceY", -1, 1, 2, 2, 86.0))
sketch20.addConstraint(Sketcher.Constraint("DistanceY", 1, 2, 3, 2, 17.0))
sketch20.addConstraint(Sketcher.Constraint("DistanceX", 1, 2, 1, 1, 9.814955))
sketch20.addConstraint(Sketcher.Constraint("DistanceX", -1, 1, 0, 2, 73.907477))
pad13 = body.newObject("PartDesign::Pad", "Pad012")
pad13.Profile = sketch20
pad13.Length = 7
pad13.Reversed = True

# Sketch on YZ plane
sketch21 = body.newObject("Sketcher::SketchObject", "Sketch020")
sketch21.AttachmentSupport = (doc.getObject("YZ_Plane"), [""])
sketch21.MapMode = "FlatFace"
sketch21.AttachmentOffset = App.Placement(V(0, 0, -36), App.Rotation())
sketch21.addGeometry(Part.Circle(V(69, 86, 0), V(0, 0, 1), 4), False)
sketch21.addConstraint(Sketcher.Constraint("Diameter", 0, 8.0))
sketch21.addConstraint(Sketcher.Constraint("DistanceX", -1, 1, 0, 3, 69.0))
sketch21.addConstraint(Sketcher.Constraint("DistanceY", -1, 1, 0, 3, 86.0))
pocket6 = body.newObject("PartDesign::Pocket", "Pocket005")
pocket6.Profile = sketch21
pocket6.Length = 7
pocket6.Reversed = True

doc.recompute()
